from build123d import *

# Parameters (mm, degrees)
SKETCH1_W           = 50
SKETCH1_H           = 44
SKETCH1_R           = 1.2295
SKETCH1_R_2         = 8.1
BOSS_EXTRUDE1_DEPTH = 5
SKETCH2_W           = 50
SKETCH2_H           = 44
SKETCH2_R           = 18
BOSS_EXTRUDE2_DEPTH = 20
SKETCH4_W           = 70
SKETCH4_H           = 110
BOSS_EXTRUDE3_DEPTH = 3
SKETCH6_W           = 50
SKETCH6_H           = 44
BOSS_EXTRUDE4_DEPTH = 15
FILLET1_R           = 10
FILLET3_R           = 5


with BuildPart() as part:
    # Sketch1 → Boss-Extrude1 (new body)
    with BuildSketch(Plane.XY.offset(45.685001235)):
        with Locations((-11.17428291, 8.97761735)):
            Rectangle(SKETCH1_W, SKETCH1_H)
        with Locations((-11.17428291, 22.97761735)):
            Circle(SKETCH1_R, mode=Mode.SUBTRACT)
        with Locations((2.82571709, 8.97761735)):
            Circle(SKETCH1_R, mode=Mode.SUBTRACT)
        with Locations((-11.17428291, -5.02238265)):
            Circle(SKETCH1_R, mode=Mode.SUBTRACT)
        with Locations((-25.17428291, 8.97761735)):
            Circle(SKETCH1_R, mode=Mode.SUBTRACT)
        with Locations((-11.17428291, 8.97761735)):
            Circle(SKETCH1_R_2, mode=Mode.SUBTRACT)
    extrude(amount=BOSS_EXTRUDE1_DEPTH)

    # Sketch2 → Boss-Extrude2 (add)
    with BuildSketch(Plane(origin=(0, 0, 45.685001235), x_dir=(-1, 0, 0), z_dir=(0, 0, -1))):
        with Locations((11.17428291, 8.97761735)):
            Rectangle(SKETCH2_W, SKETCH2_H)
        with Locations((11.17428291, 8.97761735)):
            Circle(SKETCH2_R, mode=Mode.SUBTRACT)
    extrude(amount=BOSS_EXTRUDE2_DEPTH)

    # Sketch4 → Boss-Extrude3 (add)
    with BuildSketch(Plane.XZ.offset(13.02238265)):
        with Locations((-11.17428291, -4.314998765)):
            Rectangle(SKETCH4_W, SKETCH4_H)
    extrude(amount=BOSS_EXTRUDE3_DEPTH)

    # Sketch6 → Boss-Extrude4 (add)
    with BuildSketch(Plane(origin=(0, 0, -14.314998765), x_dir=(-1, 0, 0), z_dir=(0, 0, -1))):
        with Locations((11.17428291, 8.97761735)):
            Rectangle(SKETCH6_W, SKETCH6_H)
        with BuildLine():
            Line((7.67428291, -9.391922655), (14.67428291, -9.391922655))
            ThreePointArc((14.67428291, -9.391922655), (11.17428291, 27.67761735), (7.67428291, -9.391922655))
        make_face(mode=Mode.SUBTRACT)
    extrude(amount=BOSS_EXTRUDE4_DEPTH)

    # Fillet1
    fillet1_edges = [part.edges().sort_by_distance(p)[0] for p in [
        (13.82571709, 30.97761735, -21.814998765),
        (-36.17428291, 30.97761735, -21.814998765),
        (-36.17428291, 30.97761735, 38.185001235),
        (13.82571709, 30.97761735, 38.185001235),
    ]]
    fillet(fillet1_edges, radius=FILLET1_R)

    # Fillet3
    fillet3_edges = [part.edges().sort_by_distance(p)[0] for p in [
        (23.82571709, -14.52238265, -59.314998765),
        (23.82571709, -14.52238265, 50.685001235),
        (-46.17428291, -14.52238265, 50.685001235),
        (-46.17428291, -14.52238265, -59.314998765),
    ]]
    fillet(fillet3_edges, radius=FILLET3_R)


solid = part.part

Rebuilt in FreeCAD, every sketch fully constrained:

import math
import FreeCAD as App
import Part
import Sketcher
Q = App.Units.Quantity


def edges_at(feature, points):
    """Names of the edges that pass closest to the given points."""
    edges = feature.Shape.Edges
    near = lambda p: min(range(len(edges)), key=lambda i: edges[i].distToShape(Part.Vertex(*p))[0])
    return sorted({f"Edge{near(p) + 1}" for p in points})


def add_polygon(sketch, points):
    """Adds a closed chain of lines whose ends are joined by coincident constraints."""
    first, n = sketch.GeometryCount, len(points)
    for a, b in zip(points, points[1:] + points[:1]):
        sketch.addGeometry(Part.LineSegment(App.Vector(*a, 0), App.Vector(*b, 0)), False)
    for i in range(n):
        sketch.addConstraint(Sketcher.Constraint("Coincident", first + i, 2, first + (i + 1) % n, 1))

doc = App.newDocument("Part")
body = doc.addObject("PartDesign::Body", "Body")

# Sketch on XY plane
sketch1 = doc.addObject("Sketcher::SketchObject", "Sketch")
body.addObject(sketch1)
sketch1.AttachmentSupport = (doc.XY_Plane, [""])
sketch1.MapMode = "FlatFace"
sketch1.AttachmentOffset = App.Placement(App.Vector(0, 0, 45.685001), App.Rotation())
add_polygon(sketch1, [(-36.174283, 30.977617), (-36.174283, -13.022383), (13.825717, -13.022383), (13.825717, 30.977617)])  # lines 0-3
sketch1.addGeometry(Part.Circle(App.Vector(-11.174283, -5.022383, 0), App.Vector(0, 0, 1), 1.2295), False)  # 4
sketch1.addGeometry(Part.Circle(App.Vector(-25.174283, 8.977617, 0), App.Vector(0, 0, 1), 1.2295), False)  # 5
sketch1.addGeometry(Part.Circle(App.Vector(-11.174283, 8.977617, 0), App.Vector(0, 0, 1), 8.1), False)  # 6
sketch1.addGeometry(Part.Circle(App.Vector(2.825717, 8.977617, 0), App.Vector(0, 0, 1), 1.2295), False)  # 7
sketch1.addGeometry(Part.Circle(App.Vector(-11.174283, 22.977617, 0), App.Vector(0, 0, 1), 1.2295), False)  # 8
sketch1.addConstraint([
    Sketcher.Constraint("Vertical", 0),
    Sketcher.Constraint("Horizontal", 1),
    Sketcher.Constraint("Vertical", 2),
    Sketcher.Constraint("Horizontal", 3),
    Sketcher.Constraint("Equal", 4, 5),
    Sketcher.Constraint("Equal", 5, 7),
    Sketcher.Constraint("Equal", 7, 8),
    Sketcher.Constraint("Horizontal", 5, 3, 6, 3),
    Sketcher.Constraint("Horizontal", 6, 3, 7, 3),
    Sketcher.Constraint("Vertical", 4, 3, 6, 3),
    Sketcher.Constraint("Vertical", 6, 3, 8, 3),
    Sketcher.Constraint("Diameter", 6, Q("16.2 mm")),
    Sketcher.Constraint("DistanceX", 1, 1, 1, 2, Q("50 mm")),
    Sketcher.Constraint("DistanceY", 0, 2, 0, 1, Q("44 mm")),
    Sketcher.Constraint("Diameter", 4, Q("2.459 mm")),
    Sketcher.Constraint("DistanceX", 5, 3, 4, 3, Q("14 mm")),
    Sketcher.Constraint("DistanceY", 4, 3, 5, 3, Q("14 mm")),
    Sketcher.Constraint("DistanceX", 6, 3, 7, 3, Q("14 mm")),
    Sketcher.Constraint("DistanceY", 6, 3, 8, 3, Q("14 mm")),
    Sketcher.Constraint("DistanceX", 0, 2, 5, 3, Q("11 mm")),
    Sketcher.Constraint("DistanceY", 0, 2, 5, 3, Q("22 mm")),
    Sketcher.Constraint("DistanceX", 4, 3, -1, 1, Q("11.174283 mm")),
    Sketcher.Constraint("DistanceY", 4, 3, -1, 1, Q("5.022383 mm")),
])
pad1 = doc.addObject("PartDesign::Pad", "Pad")
body.addObject(pad1)
pad1.Profile = sketch1
pad1.Length = 5

# Sketch on XY plane
sketch2 = doc.addObject("Sketcher::SketchObject", "Sketch001")
body.addObject(sketch2)
sketch2.AttachmentSupport = (doc.XY_Plane, [""])
sketch2.MapMode = "FlatFace"
sketch2.AttachmentOffset = App.Placement(App.Vector(0, 0, 45.685001), App.Rotation())
add_polygon(sketch2, [(13.825717, 30.977617), (13.825717, -13.022383), (-36.174283, -13.022383), (-36.174283, 30.977617)])  # lines 0-3
sketch2.addGeometry(Part.Circle(App.Vector(-11.174283, 8.977617, 0), App.Vector(0, 0, 1), 18), False)  # 4
sketch2.addConstraint([
    Sketcher.Constraint("Vertical", 0),
    Sketcher.Constraint("Horizontal", 1),
    Sketcher.Constraint("Vertical", 2),
    Sketcher.Constraint("Horizontal", 3),
    Sketcher.Constraint("Diameter", 4, Q("36 mm")),
    Sketcher.Constraint("DistanceX", 1, 2, 1, 1, Q("50 mm")),
    Sketcher.Constraint("DistanceY", 0, 2, 0, 1, Q("44 mm")),
    Sketcher.Constraint("DistanceX", 4, 3, 0, 2, Q("25 mm")),
    Sketcher.Constraint("DistanceY", 0, 2, 4, 3, Q("22 mm")),
    Sketcher.Constraint("DistanceX", 4, 3, -1, 1, Q("11.174283 mm")),
    Sketcher.Constraint("DistanceY", -1, 1, 4, 3, Q("8.977617 mm")),
])
pad2 = doc.addObject("PartDesign::Pad", "Pad001")
body.addObject(pad2)
pad2.Profile = sketch2
pad2.Length = 20
pad2.Reversed = True

# Sketch on XZ plane
sketch3 = doc.addObject("Sketcher::SketchObject", "Sketch002")
body.addObject(sketch3)
sketch3.AttachmentSupport = (doc.XZ_Plane, [""])
sketch3.MapMode = "FlatFace"
sketch3.AttachmentOffset = App.Placement(App.Vector(0, 0, 13.022383), App.Rotation())
add_polygon(sketch3, [(-46.174283, 50.685001), (-46.174283, -59.314999), (23.825717, -59.314999), (23.825717, 50.685001)])  # lines 0-3
sketch3.addConstraint([
    Sketcher.Constraint("Vertical", 0),
    Sketcher.Constraint("Horizontal", 1),
    Sketcher.Constraint("Vertical", 2),
    Sketcher.Constraint("Horizontal", 3),
    Sketcher.Constraint("DistanceX", 1, 1, 1, 2, Q("70 mm")),
    Sketcher.Constraint("DistanceY", 0, 2, 0, 1, Q("110 mm")),
    Sketcher.Constraint("DistanceY", 0, 2, -1, 1, Q("59.314999 mm")),
    Sketcher.Constraint("DistanceX", 0, 2, -1, 1, Q("46.174283 mm")),
])
pad3 = doc.addObject("PartDesign::Pad", "Pad002")
body.addObject(pad3)
pad3.Profile = sketch3
pad3.Length = 3

# Sketch on XY plane
sketch4 = doc.addObject("Sketcher::SketchObject", "Sketch003")
body.addObject(sketch4)
sketch4.AttachmentSupport = (doc.XY_Plane, [""])
sketch4.MapMode = "FlatFace"
sketch4.AttachmentOffset = App.Placement(App.Vector(0, 0, -14.314999), App.Rotation())
add_polygon(sketch4, [(13.825717, 30.977617), (13.825717, -13.022383), (-36.174283, -13.022383), (-36.174283, 30.977617)])  # lines 0-3
sketch4.addGeometry(Part.LineSegment(App.Vector(-14.674283, -9.391923, 0), App.Vector(-7.674283, -9.391923, 0)), False)  # 4
sketch4.addGeometry(Part.ArcOfCircle(Part.Circle(App.Vector(-11.174283, 8.977617, 0), App.Vector(0, 0, 1), 18.7), math.radians(-79.212572), math.radians(259.212572)), False)  # 5
sketch4.addConstraint([
    Sketcher.Constraint("Coincident", 4, 1, 5, 2),
    Sketcher.Constraint("Coincident", 5, 1, 4, 2),
    Sketcher.Constraint("Vertical", 0),
    Sketcher.Constraint("Horizontal", 1),
    Sketcher.Constraint("Vertical", 2),
    Sketcher.Constraint("Horizontal", 3),
    Sketcher.Constraint("Horizontal", 4),
    Sketcher.Constraint("Radius", 5, Q("18.7 mm")),
    Sketcher.Constraint("DistanceX", 1, 2, 1, 1, Q("50 mm")),
    Sketcher.Constraint("DistanceX", 4, 1, 4, 2, Q("7 mm")),
    Sketcher.Constraint("DistanceY", 0, 2, 0, 1, Q("44 mm")),
    Sketcher.Constraint("DistanceX", 5, 3, 0, 2, Q("25 mm")),
    Sketcher.Constraint("DistanceY", 0, 2, 5, 3, Q("22 mm")),
    Sketcher.Constraint("DistanceX", 5, 3, -1, 1, Q("11.174283 mm")),
    Sketcher.Constraint("DistanceY", -1, 1, 5, 3, Q("8.977617 mm")),
])
pad4 = doc.addObject("PartDesign::Pad", "Pad003")
body.addObject(pad4)
pad4.Profile = sketch4
pad4.Length = 15
pad4.Reversed = True
doc.recompute()

fillet = doc.addObject("PartDesign::Fillet", "Fillet")
body.addObject(fillet)
fillet.Base = (pad4, edges_at(pad4, [
    (13.826, 30.978, -21.815),
    (-36.174, 30.978, -21.815),
    (-36.174, 30.978, 38.185),
    (13.826, 30.978, 38.185),
]))
fillet.Radius = 10
doc.recompute()

fillet2 = doc.addObject("PartDesign::Fillet", "Fillet001")
body.addObject(fillet2)
fillet2.Base = (fillet, edges_at(fillet, [
    (23.826, -14.522, -59.315),
    (23.826, -14.522, 50.685),
    (-46.174, -14.522, 50.685),
    (-46.174, -14.522, -59.315),
]))
fillet2.Radius = 5

doc.recompute()
